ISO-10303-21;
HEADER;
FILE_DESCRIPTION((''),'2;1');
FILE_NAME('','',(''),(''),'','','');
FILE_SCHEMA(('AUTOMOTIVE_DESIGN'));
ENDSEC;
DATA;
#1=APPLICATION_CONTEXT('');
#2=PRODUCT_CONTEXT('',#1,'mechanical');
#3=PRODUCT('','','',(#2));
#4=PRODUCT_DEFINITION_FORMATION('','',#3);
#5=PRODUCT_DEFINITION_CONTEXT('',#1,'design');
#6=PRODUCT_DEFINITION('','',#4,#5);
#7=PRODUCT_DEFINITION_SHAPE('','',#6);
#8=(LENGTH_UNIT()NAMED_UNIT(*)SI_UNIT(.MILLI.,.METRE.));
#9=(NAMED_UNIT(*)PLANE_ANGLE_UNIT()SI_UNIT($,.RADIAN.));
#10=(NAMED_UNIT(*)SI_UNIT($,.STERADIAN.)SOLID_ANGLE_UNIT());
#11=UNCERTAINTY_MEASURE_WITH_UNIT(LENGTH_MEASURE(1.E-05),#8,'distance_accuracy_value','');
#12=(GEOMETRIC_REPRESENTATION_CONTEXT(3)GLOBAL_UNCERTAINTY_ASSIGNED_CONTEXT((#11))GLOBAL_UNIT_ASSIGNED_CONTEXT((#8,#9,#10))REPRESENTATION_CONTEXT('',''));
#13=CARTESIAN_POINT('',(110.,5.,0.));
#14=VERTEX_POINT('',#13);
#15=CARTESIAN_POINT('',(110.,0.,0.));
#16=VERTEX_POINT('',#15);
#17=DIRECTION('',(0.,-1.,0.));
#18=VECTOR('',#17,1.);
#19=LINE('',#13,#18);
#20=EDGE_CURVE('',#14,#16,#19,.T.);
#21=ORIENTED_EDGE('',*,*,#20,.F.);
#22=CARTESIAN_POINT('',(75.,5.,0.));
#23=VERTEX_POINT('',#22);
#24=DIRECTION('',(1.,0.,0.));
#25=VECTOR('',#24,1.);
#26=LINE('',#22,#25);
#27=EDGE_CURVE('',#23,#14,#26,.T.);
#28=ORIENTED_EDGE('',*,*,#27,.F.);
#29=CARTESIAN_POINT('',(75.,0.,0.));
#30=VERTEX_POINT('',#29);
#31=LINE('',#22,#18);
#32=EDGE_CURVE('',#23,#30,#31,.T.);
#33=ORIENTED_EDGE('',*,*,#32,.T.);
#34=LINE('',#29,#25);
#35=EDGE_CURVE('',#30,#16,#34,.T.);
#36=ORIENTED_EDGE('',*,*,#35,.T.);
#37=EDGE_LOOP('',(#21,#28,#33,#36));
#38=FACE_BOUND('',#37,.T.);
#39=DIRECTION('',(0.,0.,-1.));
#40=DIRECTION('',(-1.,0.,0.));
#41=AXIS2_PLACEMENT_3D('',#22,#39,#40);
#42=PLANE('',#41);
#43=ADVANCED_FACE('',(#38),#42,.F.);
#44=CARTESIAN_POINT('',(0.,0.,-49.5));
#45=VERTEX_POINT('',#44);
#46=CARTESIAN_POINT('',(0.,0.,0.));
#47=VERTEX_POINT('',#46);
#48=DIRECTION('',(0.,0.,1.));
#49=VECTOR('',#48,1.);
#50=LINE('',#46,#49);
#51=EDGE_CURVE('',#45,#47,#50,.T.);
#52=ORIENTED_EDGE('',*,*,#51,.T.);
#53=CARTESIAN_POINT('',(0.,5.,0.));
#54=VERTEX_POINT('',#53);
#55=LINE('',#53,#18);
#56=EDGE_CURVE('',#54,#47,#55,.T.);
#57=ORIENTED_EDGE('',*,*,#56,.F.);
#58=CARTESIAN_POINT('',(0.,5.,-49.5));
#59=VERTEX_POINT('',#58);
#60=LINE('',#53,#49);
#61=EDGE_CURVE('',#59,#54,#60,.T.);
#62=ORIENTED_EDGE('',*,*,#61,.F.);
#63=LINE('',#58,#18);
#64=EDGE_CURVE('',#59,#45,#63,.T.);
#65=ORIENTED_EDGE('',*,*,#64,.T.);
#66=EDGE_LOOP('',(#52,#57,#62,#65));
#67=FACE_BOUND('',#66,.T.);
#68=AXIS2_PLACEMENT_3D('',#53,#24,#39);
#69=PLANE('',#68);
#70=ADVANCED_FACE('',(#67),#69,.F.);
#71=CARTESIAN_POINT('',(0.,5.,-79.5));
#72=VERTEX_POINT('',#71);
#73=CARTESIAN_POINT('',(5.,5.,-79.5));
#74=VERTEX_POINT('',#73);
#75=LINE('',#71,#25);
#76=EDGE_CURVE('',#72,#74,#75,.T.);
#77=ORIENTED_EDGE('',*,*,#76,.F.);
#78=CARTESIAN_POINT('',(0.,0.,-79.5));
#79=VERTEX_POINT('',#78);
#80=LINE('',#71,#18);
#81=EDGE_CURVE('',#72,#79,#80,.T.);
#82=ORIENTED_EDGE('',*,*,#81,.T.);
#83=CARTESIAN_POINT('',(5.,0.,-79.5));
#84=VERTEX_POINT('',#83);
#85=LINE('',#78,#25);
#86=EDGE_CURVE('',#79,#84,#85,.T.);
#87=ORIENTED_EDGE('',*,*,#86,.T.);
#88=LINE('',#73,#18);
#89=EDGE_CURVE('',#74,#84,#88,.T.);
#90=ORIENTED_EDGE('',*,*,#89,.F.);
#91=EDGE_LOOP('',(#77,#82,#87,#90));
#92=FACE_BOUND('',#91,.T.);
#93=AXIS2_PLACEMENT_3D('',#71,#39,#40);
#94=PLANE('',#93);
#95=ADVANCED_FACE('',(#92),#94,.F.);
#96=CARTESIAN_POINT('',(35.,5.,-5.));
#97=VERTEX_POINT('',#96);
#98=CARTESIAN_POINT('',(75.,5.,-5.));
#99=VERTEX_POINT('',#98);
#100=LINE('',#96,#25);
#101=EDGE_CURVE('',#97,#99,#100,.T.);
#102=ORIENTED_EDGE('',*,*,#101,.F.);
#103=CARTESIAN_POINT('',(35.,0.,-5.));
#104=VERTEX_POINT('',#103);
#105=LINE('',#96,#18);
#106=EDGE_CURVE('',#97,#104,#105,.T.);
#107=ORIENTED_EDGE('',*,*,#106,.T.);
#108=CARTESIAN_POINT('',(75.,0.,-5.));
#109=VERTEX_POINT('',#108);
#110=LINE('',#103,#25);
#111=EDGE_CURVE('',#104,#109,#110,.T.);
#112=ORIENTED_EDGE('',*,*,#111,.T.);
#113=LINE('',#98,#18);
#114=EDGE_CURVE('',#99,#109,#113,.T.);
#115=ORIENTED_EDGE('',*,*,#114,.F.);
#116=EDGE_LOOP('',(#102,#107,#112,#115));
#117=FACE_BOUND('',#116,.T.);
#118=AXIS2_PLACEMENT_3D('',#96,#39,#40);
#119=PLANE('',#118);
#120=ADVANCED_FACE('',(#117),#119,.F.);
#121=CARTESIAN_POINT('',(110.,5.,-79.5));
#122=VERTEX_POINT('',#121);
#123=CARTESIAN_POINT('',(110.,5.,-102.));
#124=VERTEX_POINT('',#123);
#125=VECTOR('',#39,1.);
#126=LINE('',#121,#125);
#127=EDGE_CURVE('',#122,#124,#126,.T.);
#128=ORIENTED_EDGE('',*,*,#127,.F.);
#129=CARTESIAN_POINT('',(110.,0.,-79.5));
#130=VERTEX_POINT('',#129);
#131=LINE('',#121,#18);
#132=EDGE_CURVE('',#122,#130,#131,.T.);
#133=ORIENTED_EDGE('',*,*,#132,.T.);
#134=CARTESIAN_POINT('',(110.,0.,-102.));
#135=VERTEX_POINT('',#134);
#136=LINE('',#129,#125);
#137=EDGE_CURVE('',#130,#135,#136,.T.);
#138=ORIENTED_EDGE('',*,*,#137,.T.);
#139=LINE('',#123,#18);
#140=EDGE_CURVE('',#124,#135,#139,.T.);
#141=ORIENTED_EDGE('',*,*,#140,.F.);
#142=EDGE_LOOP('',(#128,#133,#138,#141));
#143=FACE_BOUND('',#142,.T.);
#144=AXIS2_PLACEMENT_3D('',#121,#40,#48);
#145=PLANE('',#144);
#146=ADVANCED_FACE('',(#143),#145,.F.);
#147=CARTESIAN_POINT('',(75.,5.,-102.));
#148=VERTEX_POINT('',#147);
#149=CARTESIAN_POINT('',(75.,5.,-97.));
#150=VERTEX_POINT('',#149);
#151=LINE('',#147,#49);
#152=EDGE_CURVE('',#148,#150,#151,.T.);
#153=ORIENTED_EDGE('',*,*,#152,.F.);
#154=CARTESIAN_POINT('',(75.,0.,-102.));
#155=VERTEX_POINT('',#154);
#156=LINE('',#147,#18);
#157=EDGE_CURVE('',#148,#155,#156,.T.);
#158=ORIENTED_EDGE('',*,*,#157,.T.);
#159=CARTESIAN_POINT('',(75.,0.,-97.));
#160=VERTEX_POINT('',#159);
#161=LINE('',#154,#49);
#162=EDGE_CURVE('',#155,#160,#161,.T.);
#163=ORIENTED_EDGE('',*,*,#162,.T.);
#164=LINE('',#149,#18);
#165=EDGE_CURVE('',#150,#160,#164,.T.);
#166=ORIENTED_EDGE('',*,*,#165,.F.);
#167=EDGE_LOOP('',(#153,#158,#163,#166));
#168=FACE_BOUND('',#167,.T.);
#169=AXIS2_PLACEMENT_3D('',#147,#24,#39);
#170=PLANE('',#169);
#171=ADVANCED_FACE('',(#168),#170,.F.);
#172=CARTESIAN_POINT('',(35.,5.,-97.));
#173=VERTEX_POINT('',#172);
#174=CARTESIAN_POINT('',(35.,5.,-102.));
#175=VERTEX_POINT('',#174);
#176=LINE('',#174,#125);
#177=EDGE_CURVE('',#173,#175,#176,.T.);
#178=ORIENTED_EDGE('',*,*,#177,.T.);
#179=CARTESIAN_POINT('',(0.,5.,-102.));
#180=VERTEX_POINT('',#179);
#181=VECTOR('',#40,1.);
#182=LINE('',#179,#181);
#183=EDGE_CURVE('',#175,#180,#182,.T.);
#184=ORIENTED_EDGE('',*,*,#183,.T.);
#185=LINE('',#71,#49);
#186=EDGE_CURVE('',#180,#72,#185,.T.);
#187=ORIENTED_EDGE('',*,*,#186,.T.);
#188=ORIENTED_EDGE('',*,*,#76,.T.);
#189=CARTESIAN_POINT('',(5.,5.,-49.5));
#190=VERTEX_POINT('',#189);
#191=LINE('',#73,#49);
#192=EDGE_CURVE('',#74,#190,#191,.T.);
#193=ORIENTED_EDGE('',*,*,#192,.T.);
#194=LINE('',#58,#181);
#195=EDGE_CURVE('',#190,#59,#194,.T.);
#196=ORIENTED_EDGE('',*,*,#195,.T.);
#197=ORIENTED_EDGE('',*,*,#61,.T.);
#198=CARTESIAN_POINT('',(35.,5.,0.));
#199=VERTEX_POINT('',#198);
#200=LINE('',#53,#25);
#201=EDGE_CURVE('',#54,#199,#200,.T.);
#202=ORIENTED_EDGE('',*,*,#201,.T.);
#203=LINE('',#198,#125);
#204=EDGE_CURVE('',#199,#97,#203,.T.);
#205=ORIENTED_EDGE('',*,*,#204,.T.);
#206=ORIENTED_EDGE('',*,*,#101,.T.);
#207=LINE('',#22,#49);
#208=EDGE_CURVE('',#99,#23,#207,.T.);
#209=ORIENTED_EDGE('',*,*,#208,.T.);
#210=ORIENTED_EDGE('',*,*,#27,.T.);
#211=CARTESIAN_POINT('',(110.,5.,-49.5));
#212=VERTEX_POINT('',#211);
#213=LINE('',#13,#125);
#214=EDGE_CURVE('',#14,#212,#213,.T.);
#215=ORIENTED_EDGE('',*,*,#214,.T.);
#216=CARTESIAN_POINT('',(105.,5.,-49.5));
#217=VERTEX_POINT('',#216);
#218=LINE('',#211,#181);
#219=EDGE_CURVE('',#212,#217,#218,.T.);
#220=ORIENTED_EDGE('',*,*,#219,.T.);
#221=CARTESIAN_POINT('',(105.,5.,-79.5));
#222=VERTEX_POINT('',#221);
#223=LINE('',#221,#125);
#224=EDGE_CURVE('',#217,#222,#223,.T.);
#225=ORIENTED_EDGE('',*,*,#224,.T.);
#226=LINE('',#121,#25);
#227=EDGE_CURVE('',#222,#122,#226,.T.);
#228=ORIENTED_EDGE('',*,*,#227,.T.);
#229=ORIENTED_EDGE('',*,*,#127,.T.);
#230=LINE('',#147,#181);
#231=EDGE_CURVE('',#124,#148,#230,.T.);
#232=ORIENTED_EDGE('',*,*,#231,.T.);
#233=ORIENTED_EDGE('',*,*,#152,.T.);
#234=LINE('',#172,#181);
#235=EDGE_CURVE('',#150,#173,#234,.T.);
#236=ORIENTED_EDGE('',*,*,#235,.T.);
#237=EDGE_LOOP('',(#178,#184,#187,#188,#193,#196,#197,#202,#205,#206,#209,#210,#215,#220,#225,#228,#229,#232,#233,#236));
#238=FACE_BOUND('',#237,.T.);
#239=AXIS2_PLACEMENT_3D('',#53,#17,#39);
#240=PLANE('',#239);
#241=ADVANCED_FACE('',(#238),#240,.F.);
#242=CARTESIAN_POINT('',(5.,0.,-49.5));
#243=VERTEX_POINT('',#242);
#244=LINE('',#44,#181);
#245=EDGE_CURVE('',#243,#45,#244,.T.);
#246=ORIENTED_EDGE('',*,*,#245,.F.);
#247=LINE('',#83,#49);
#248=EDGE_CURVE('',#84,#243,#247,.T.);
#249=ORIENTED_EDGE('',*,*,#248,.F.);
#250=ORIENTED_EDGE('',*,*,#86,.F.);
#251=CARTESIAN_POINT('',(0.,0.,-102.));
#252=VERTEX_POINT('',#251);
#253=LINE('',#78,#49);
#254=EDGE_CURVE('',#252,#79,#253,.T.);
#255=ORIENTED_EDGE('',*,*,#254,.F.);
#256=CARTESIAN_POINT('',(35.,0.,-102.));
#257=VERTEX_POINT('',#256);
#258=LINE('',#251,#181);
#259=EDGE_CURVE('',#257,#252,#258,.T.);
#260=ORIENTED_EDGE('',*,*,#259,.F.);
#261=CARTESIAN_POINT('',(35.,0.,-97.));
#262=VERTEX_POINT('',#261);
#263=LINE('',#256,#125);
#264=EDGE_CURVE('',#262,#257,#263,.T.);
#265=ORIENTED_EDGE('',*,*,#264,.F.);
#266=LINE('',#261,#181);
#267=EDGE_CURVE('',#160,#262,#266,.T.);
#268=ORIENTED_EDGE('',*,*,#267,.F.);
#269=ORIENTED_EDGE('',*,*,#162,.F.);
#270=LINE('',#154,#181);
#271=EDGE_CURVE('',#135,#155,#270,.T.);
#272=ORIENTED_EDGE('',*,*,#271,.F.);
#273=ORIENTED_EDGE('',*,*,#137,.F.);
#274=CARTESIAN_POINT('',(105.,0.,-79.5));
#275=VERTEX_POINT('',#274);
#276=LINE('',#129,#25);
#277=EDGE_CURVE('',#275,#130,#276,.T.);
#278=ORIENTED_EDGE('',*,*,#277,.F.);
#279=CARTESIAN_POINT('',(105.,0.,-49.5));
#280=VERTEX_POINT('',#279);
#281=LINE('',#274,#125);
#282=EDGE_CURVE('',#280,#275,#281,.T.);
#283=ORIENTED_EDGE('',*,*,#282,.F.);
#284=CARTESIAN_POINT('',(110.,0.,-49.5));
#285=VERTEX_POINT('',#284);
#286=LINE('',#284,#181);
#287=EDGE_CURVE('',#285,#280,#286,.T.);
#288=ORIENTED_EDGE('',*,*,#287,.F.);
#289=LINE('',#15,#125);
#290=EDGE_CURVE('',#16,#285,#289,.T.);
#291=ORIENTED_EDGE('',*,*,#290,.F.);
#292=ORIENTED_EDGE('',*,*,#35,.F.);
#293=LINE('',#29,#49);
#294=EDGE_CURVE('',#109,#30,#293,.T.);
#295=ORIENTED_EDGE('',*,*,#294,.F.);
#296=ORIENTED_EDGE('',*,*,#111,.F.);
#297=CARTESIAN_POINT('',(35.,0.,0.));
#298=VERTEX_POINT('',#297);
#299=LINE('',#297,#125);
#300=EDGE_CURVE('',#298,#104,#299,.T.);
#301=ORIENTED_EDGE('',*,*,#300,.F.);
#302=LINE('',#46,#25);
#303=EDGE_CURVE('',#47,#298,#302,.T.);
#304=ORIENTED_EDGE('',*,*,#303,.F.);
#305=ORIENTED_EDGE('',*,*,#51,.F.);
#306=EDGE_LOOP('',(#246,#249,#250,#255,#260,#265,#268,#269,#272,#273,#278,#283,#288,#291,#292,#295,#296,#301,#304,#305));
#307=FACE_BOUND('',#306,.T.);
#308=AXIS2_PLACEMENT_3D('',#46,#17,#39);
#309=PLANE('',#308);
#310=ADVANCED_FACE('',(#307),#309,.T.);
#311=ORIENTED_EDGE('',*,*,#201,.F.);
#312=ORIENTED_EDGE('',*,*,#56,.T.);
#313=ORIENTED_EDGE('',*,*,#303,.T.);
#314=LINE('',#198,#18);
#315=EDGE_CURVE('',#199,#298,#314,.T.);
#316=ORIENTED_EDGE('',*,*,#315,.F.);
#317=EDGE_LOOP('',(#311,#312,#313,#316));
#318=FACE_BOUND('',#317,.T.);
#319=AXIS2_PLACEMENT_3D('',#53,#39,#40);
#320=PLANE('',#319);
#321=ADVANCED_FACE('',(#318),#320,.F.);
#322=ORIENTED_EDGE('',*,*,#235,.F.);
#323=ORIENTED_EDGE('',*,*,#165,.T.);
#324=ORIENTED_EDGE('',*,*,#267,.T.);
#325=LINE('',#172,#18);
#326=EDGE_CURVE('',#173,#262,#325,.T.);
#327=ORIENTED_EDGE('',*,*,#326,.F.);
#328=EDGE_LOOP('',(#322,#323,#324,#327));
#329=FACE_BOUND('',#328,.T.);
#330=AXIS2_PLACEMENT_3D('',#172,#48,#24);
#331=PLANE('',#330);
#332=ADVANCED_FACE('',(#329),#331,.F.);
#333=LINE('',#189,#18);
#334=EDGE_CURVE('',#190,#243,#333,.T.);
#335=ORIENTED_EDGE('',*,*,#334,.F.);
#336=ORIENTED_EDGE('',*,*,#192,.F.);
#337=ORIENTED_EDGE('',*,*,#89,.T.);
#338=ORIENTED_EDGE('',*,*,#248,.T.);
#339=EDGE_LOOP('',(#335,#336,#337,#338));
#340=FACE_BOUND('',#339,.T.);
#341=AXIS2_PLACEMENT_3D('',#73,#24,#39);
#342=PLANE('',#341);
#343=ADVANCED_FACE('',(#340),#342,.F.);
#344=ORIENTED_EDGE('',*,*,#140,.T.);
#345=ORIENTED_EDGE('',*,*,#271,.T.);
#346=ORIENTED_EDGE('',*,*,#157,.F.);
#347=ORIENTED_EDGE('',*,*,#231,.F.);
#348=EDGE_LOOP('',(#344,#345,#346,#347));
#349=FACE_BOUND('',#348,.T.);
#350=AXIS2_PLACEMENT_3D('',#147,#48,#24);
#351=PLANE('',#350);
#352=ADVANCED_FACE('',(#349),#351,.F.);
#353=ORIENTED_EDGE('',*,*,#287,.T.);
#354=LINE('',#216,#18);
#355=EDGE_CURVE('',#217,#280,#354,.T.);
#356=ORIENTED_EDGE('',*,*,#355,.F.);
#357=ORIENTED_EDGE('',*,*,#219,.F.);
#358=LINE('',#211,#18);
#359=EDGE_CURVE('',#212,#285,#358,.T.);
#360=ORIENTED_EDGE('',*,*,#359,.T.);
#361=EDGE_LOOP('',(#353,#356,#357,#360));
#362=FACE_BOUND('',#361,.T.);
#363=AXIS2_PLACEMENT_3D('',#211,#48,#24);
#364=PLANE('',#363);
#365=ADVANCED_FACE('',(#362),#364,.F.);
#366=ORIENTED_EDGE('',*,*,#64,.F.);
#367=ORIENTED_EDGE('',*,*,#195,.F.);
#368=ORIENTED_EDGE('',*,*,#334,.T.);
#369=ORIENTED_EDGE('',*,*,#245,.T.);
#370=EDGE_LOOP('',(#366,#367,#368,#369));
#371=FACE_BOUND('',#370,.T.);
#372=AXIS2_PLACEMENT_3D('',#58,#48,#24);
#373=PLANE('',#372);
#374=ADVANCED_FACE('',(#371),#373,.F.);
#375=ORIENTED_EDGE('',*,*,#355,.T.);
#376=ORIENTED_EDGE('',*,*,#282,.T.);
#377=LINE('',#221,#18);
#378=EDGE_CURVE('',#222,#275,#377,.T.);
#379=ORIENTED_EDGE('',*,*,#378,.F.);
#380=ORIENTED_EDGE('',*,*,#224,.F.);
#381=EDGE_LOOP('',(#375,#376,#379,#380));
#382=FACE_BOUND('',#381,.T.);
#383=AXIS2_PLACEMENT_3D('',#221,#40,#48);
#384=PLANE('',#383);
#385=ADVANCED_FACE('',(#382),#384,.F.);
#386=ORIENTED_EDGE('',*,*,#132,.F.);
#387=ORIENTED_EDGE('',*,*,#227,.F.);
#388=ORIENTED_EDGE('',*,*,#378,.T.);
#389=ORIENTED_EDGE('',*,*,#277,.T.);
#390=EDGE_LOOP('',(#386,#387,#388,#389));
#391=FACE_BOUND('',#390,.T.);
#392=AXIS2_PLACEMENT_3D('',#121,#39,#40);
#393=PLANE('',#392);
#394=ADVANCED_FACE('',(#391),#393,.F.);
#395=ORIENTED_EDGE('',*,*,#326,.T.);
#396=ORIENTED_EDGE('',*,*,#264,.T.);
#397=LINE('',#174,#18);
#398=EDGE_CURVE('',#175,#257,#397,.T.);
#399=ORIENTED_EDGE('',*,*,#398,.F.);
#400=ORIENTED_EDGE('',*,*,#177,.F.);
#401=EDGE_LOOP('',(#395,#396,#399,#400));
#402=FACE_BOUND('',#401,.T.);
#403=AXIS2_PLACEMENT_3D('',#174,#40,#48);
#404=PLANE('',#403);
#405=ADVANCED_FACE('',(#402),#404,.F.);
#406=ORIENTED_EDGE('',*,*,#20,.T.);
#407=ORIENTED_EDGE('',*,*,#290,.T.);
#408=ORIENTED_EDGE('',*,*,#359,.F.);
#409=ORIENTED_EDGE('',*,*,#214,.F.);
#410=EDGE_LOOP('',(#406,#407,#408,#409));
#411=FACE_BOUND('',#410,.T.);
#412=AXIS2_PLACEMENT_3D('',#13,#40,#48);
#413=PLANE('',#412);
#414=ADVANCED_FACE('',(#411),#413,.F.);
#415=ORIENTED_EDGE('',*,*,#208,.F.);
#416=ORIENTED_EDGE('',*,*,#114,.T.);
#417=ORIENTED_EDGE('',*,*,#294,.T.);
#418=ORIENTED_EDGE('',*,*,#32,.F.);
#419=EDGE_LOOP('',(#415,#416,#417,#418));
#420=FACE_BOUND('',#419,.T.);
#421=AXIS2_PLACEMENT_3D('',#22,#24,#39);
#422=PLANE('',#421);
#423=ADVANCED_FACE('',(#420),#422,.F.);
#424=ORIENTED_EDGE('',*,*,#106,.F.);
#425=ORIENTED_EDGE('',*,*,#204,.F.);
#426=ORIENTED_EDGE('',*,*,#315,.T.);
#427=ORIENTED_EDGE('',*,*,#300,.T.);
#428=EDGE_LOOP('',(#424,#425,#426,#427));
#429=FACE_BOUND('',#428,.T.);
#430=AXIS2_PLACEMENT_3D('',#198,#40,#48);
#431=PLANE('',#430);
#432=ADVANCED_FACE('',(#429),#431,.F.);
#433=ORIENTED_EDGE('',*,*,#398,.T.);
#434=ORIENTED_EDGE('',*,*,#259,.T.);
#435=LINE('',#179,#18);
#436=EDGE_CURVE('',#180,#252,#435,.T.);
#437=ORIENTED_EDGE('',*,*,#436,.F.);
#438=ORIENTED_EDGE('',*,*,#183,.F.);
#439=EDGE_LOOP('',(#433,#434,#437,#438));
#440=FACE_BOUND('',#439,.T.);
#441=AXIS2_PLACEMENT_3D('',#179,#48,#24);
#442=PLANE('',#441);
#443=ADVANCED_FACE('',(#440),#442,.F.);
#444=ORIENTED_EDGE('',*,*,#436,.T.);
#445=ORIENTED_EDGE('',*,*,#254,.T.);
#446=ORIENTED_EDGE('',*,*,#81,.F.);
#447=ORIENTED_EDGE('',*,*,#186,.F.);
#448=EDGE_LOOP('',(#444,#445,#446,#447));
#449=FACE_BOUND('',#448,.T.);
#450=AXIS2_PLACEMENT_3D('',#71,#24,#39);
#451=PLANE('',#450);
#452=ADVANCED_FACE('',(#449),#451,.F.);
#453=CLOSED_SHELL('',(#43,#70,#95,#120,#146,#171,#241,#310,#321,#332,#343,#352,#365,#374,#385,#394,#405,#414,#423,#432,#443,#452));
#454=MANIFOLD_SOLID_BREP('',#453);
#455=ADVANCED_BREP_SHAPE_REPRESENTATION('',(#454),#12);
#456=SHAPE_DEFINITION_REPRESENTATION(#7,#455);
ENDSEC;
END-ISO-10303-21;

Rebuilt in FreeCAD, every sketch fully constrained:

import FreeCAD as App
import Part
import Sketcher
Q = App.Units.Quantity

doc = App.newDocument("Part")
body = doc.addObject("PartDesign::Body", "Body")

# Sketch on XZ plane
sketch1 = body.newObject("Sketcher::SketchObject", "Sketch")
sketch1.AttachmentSupport = (doc.getObject("XZ_Plane"), [""])
sketch1.MapMode = "FlatFace"
sketch1.addGeometry([
    Part.LineSegment(App.Vector(110, -102, 0), App.Vector(75, -102, 0)),  # 0
    Part.LineSegment(App.Vector(75, -102, 0), App.Vector(75, -97, 0)),  # 1
    Part.LineSegment(App.Vector(75, -97, 0), App.Vector(35, -97, 0)),  # 2
    Part.LineSegment(App.Vector(35, -97, 0), App.Vector(35, -102, 0)),  # 3
    Part.LineSegment(App.Vector(35, -102, 0), App.Vector(0, -102, 0)),  # 4
    Part.LineSegment(App.Vector(0, -102, 0), App.Vector(0, -79.5, 0)),  # 5
    Part.LineSegment(App.Vector(0, -79.5, 0), App.Vector(5, -79.5, 0)),  # 6
    Part.LineSegment(App.Vector(5, -79.5, 0), App.Vector(5, -49.5, 0)),  # 7
    Part.LineSegment(App.Vector(5, -49.5, 0), App.Vector(0, -49.5, 0)),  # 8
    Part.LineSegment(App.Vector(0, -49.5, 0), App.Vector(0, 0, 0)),  # 9
    Part.LineSegment(App.Vector(0, 0, 0), App.Vector(35, 0, 0)),  # 10
    Part.LineSegment(App.Vector(35, 0, 0), App.Vector(35, -5, 0)),  # 11
    Part.LineSegment(App.Vector(35, -5, 0), App.Vector(75, -5, 0)),  # 12
    Part.LineSegment(App.Vector(75, -5, 0), App.Vector(75, 0, 0)),  # 13
    Part.LineSegment(App.Vector(75, 0, 0), App.Vector(110, 0, 0)),  # 14
    Part.LineSegment(App.Vector(110, 0, 0), App.Vector(110, -49.5, 0)),  # 15
    Part.LineSegment(App.Vector(110, -49.5, 0), App.Vector(105, -49.5, 0)),  # 16
    Part.LineSegment(App.Vector(105, -49.5, 0), App.Vector(105, -79.5, 0)),  # 17
    Part.LineSegment(App.Vector(105, -79.5, 0), App.Vector(110, -79.5, 0)),  # 18
    Part.LineSegment(App.Vector(110, -79.5, 0), App.Vector(110, -102, 0)),  # 19
], False)
sketch1.addConstraint([
    Sketcher.Constraint("Coincident", 0, 2, 1, 1),
    Sketcher.Constraint("Coincident", 1, 2, 2, 1),
    Sketcher.Constraint("Coincident", 2, 2, 3, 1),
    Sketcher.Constraint("Coincident", 3, 2, 4, 1),
    Sketcher.Constraint("Coincident", 4, 2, 5, 1),
    Sketcher.Constraint("Coincident", 5, 2, 6, 1),
    Sketcher.Constraint("Coincident", 6, 2, 7, 1),
    Sketcher.Constraint("Coincident", 7, 2, 8, 1),
    Sketcher.Constraint("Coincident", 8, 2, 9, 1),
    Sketcher.Constraint("Coincident", 9, 2, 10, 1),
    Sketcher.Constraint("Coincident", 10, 2, 11, 1),
    Sketcher.Constraint("Coincident", 11, 2, 12, 1),
    Sketcher.Constraint("Coincident", 12, 2, 13, 1),
    Sketcher.Constraint("Coincident", 13, 2, 14, 1),
    Sketcher.Constraint("Coincident", 14, 2, 15, 1),
    Sketcher.Constraint("Coincident", 15, 2, 16, 1),
    Sketcher.Constraint("Coincident", 16, 2, 17, 1),
    Sketcher.Constraint("Coincident", 17, 2, 18, 1),
    Sketcher.Constraint("Coincident", 18, 2, 19, 1),
    Sketcher.Constraint("Coincident", 19, 2, 0, 1),
    Sketcher.Constraint("Horizontal", 0),
    Sketcher.Constraint("Vertical", 1),
    Sketcher.Constraint("Horizontal", 2),
    Sketcher.Constraint("Vertical", 3),
    Sketcher.Constraint("Horizontal", 4),
    Sketcher.Constraint("Vertical", 5),
    Sketcher.Constraint("Horizontal", 6),
    Sketcher.Constraint("Vertical", 7),
    Sketcher.Constraint("Horizontal", 8),
    Sketcher.Constraint("Vertical", 9),
    Sketcher.Constraint("Horizontal", 10),
    Sketcher.Constraint("Vertical", 11),
    Sketcher.Constraint("Horizontal", 12),
    Sketcher.Constraint("Vertical", 13),
    Sketcher.Constraint("Horizontal", 14),
    Sketcher.Constraint("Vertical", 15),
    Sketcher.Constraint("Horizontal", 16),
    Sketcher.Constraint("Vertical", 17),
    Sketcher.Constraint("Horizontal", 18),
    Sketcher.Constraint("Vertical", 19),
    Sketcher.Constraint("Coincident", 9, 2, -1, 1),
    Sketcher.Constraint("PointOnObject", 4, 2, -2),
    Sketcher.Constraint("PointOnObject", 13, 2, -1),
    Sketcher.Constraint("Horizontal", 0, 2, 3, 2),
    Sketcher.Constraint("Horizontal", 8, 2, 15, 2),
    Sketcher.Constraint("Horizontal", 6, 2, 17, 2),
    Sketcher.Constraint("Vertical", 3, 2, 10, 2),
    Sketcher.Constraint("Vertical", 1, 2, 12, 2),
    Sketcher.Constraint("Vertical", 15, 2, 18, 2),
    Sketcher.Constraint("Equal", 0, 4),
    Sketcher.Constraint("Equal", 8, 16),
    Sketcher.Constraint("Equal", 18, 1),
    Sketcher.Constraint("Equal", 3, 11),
    Sketcher.Constraint("DistanceX", 0, 2, 0, 1, Q("35 mm")),
    Sketcher.Constraint("DistanceX", 2, 2, 2, 1, Q("40 mm")),
    Sketcher.Constraint("DistanceX", 6, 1, 6, 2, Q("5 mm")),
    Sketcher.Constraint("DistanceY", 7, 1, 7, 2, Q("30 mm")),
    Sketcher.Constraint("DistanceY", 5, 1, 5, 2, Q("22.5 mm")),
    Sketcher.Constraint("DistanceY", 9, 1, 9, 2, Q("49.5 mm")),
])
pad1 = body.newObject("PartDesign::Pad", "Pad")
pad1.Profile = sketch1
pad1.Length = 5
pad1.Reversed = True

doc.recompute()
